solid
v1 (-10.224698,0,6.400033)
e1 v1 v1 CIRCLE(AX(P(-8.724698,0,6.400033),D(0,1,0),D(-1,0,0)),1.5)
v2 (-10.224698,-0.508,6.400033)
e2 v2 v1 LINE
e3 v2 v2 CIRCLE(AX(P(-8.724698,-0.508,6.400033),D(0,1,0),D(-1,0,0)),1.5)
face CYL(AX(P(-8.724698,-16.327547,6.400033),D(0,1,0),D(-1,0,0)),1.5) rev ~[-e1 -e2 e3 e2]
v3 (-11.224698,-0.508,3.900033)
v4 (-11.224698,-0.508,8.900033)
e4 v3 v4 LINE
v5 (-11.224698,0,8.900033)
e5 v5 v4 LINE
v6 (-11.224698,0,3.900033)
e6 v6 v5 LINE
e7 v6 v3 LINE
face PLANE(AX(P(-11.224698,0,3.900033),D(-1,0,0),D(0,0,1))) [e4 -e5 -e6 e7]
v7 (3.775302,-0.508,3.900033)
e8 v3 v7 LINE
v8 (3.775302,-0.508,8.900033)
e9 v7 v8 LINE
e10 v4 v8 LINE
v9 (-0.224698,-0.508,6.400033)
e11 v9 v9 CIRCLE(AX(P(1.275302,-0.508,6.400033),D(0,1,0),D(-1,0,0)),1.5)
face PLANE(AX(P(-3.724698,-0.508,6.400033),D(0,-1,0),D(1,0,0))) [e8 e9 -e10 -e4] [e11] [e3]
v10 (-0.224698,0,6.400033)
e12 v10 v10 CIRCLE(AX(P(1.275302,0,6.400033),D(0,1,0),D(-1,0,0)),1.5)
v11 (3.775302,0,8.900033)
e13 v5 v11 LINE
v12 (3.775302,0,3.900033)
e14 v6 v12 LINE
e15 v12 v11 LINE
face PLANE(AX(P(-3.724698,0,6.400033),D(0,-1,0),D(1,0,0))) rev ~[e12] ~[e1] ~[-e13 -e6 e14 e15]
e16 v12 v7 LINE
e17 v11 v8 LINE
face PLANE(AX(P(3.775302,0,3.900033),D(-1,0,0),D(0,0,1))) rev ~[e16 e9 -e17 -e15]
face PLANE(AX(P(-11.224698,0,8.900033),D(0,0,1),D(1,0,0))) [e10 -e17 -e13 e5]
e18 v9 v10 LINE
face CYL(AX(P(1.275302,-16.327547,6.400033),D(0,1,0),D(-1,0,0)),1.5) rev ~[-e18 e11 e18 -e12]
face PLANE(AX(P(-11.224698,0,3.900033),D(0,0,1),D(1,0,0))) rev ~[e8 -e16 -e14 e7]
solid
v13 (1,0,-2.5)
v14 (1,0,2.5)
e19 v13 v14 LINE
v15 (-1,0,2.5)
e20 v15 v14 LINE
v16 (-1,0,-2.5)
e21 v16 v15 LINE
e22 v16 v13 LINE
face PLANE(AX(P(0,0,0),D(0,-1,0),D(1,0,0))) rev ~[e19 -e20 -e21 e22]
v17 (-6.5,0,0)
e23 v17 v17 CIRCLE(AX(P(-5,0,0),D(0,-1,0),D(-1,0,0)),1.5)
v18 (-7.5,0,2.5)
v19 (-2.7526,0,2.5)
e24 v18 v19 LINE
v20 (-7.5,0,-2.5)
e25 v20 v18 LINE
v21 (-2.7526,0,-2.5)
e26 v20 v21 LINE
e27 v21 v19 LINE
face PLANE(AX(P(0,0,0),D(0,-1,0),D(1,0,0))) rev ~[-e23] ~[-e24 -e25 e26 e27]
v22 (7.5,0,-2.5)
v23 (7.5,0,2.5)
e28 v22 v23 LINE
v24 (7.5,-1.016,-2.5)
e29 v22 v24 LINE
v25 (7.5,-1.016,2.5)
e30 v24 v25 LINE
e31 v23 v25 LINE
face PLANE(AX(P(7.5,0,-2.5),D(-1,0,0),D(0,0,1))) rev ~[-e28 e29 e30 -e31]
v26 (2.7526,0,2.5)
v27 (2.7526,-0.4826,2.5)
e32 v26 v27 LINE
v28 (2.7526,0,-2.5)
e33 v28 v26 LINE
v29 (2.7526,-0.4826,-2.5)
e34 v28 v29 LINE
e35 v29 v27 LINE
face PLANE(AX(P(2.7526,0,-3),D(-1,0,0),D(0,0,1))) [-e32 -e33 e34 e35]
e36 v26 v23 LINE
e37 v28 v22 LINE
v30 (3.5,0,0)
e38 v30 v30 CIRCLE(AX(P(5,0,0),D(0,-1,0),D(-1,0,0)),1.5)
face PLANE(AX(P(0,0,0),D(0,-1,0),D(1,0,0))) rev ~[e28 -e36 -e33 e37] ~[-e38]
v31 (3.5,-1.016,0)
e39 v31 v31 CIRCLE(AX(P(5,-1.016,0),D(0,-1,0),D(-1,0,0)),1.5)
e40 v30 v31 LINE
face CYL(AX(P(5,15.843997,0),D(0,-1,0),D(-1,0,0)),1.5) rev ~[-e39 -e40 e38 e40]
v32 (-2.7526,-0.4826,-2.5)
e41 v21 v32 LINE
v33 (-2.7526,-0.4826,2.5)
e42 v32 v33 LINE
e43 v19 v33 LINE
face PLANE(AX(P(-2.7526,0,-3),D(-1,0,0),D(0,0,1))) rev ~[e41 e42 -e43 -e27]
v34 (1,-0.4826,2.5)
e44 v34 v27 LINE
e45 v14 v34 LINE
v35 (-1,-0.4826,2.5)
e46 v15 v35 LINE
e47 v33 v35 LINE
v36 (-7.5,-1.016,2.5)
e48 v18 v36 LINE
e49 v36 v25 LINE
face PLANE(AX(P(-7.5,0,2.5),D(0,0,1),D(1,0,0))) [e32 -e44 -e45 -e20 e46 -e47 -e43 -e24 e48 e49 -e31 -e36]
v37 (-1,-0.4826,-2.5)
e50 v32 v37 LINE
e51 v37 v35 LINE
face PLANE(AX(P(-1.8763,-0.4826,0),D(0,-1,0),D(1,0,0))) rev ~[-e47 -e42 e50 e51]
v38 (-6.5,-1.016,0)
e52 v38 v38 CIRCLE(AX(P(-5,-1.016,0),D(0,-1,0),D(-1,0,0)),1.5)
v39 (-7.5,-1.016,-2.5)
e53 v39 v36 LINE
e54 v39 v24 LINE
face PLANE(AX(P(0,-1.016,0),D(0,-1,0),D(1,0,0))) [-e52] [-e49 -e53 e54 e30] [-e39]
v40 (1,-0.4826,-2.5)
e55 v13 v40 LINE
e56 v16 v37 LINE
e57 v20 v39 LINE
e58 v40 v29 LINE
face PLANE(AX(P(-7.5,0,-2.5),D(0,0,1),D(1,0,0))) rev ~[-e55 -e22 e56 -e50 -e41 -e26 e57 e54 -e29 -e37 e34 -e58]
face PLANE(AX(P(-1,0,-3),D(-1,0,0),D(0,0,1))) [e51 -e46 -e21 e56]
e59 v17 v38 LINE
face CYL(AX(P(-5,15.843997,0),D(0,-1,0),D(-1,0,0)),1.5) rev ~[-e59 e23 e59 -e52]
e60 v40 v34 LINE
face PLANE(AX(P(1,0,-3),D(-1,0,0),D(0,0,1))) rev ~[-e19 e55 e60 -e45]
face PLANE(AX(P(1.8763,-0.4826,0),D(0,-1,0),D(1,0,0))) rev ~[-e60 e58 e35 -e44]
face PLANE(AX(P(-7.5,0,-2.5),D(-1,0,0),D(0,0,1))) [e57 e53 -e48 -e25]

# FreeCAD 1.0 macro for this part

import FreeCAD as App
import Part
import Sketcher
from FreeCAD import Vector
Q = App.Units.Quantity

doc = App.newDocument("Part")
body = doc.addObject("PartDesign::Body", "Body")

sketch1 = body.newObject("Sketcher::SketchObject", "Sketch")
sketch1.AttachmentSupport = (doc.getObject("XZ_Plane"), [""])
sketch1.MapMode = "FlatFace"
sketch1.addGeometry([
    Part.LineSegment(Vector(-8, 2, 0), Vector(-8, -2, 0)),
    Part.LineSegment(Vector(-8, -2, 0), Vector(8, -2, 0)),
    Part.LineSegment(Vector(8, -2, 0), Vector(8, 2, 0)),
    Part.LineSegment(Vector(8, 2, 0), Vector(-8, 2, 0)),
], False)
sketch1.addConstraint([
    Sketcher.Constraint("Coincident", 0, 2, 1, 1),
    Sketcher.Constraint("Coincident", 1, 2, 2, 1),
    Sketcher.Constraint("Coincident", 2, 2, 3, 1),
    Sketcher.Constraint("Coincident", 3, 2, 0, 1),
    Sketcher.Constraint("Vertical", 0),
    Sketcher.Constraint("Horizontal", 1),
    Sketcher.Constraint("Vertical", 2),
    Sketcher.Constraint("Horizontal", 3),
    Sketcher.Constraint("Symmetric", 0, 2, 2, 2, -1, 1),
    Sketcher.Constraint("DistanceX", 1, 1, 1, 2, Q("15 mm")),
    Sketcher.Constraint("DistanceY", 0, 2, 0, 1, Q("5 mm")),
])
pad1 = body.newObject("PartDesign::Pad", "Pad")
pad1.Profile = sketch1
pad1.Length = 1.016

sketch2 = body.newObject("Sketcher::SketchObject", "Sketch001")
sketch2.AttachmentSupport = (doc.getObject("XZ_Plane"), [""])
sketch2.MapMode = "FlatFace"
sketch2.addGeometry([
    Part.Circle(Vector(-5, 0, 0), Vector(0, 0, 1), 1.5),
    Part.Circle(Vector(5, 0, 0), Vector(0, 0, 1), 1.5),
], False)
sketch2.addConstraint([
    Sketcher.Constraint("Equal", 0, 1),
    Sketcher.Constraint("Symmetric", 0, 3, 1, 3, -1, 1),
    Sketcher.Constraint("PointOnObject", 0, 3, -1),
    Sketcher.Constraint("Diameter", 0, Q("3 mm")),
    Sketcher.Constraint("DistanceX", 0, 3, -1, 1, Q("5 mm")),
])
doc.recompute()
hole = body.newObject("PartDesign::Hole", "Hole")
hole.Profile = sketch2
hole.ThreadType = "None"
hole.Diameter = 3
hole.DepthType = "ThroughAll"
hole.Reversed = True
body2 = doc.addObject("PartDesign::Body", "Body001")

sketch3 = body2.newObject("Sketcher::SketchObject", "Sketch002")
sketch3.AttachmentSupport = (doc.getObject("XZ_Plane001"), [""])
sketch3.MapMode = "FlatFace"
sketch3.addGeometry([
    Part.LineSegment(Vector(-11, 9, 0), Vector(-11, 4, 0)),
    Part.LineSegment(Vector(-11, 4, 0), Vector(4, 4, 0)),
    Part.LineSegment(Vector(4, 4, 0), Vector(4, 9, 0)),
    Part.LineSegment(Vector(4, 9, 0), Vector(-11, 9, 0)),
], False)
sketch3.addConstraint([
    Sketcher.Constraint("Coincident", 0, 2, 1, 1),
    Sketcher.Constraint("Coincident", 1, 2, 2, 1),
    Sketcher.Constraint("Coincident", 2, 2, 3, 1),
    Sketcher.Constraint("Coincident", 3, 2, 0, 1),
    Sketcher.Constraint("Vertical", 0),
    Sketcher.Constraint("Horizontal", 1),
    Sketcher.Constraint("Vertical", 2),
    Sketcher.Constraint("Horizontal", 3),
    Sketcher.Constraint("DistanceX", 1, 1, 1, 2, Q("15 mm")),
    Sketcher.Constraint("DistanceY", 0, 2, 0, 1, Q("5 mm")),
    Sketcher.Constraint("DistanceX", -1, 1, 1, 2, Q("3.775302 mm")),
    Sketcher.Constraint("DistanceY", -1, 1, 0, 2, Q("3.900033 mm")),
])
pad2 = body2.newObject("PartDesign::Pad", "Pad001")
pad2.Profile = sketch3
pad2.Length = 0.508

sketch4 = body2.newObject("Sketcher::SketchObject", "Sketch003")
sketch4.AttachmentSupport = (doc.getObject("XZ_Plane001"), [""])
sketch4.MapMode = "FlatFace"
sketch4.AttachmentOffset = App.Placement(Vector(0, 0, 0.508), App.Rotation())
sketch4.addGeometry([
    Part.Circle(Vector(-8.7, 6.4, 0), Vector(0, 0, 1), 1.5),
    Part.Circle(Vector(1.3, 6.4, 0), Vector(0, 0, 1), 1.5),
], False)
sketch4.addConstraint([
    Sketcher.Constraint("Equal", 0, 1),
    Sketcher.Constraint("Horizontal", 0, 3, 1, 3),
    Sketcher.Constraint("Diameter", 0, Q("3 mm")),
    Sketcher.Constraint("DistanceX", 0, 3, 1, 3, Q("10 mm")),
    Sketcher.Constraint("DistanceX", -1, 1, 1, 3, Q("1.275302 mm")),
    Sketcher.Constraint("DistanceY", -1, 1, 0, 3, Q("6.400033 mm")),
])
doc.recompute()
hole2 = body2.newObject("PartDesign::Hole", "Hole001")
hole2.Profile = sketch4
hole2.ThreadType = "None"
hole2.Diameter = 3
hole2.DepthType = "ThroughAll"
body3 = doc.addObject("PartDesign::Body", "Body002")

sketch5 = body3.newObject("Sketcher::SketchObject", "Sketch004")
sketch5.AttachmentSupport = (doc.getObject("XZ_Plane002"), [""])
sketch5.MapMode = "FlatFace"
sketch5.addGeometry([
    Part.LineSegment(Vector(-2.8, 3, 0), Vector(-2.8, -3, 0)),
    Part.LineSegment(Vector(-2.8, -3, 0), Vector(-1, -3, 0)),
    Part.LineSegment(Vector(-1, -3, 0), Vector(-1, 3, 0)),
    Part.LineSegment(Vector(-1, 3, 0), Vector(-2.8, 3, 0)),
], False)
sketch5.addConstraint([
    Sketcher.Constraint("Coincident", 0, 2, 1, 1),
    Sketcher.Constraint("Coincident", 1, 2, 2, 1),
    Sketcher.Constraint("Coincident", 2, 2, 3, 1),
    Sketcher.Constraint("Coincident", 3, 2, 0, 1),
    Sketcher.Constraint("Vertical", 0),
    Sketcher.Constraint("Horizontal", 1),
    Sketcher.Constraint("Vertical", 2),
    Sketcher.Constraint("Horizontal", 3),
    Sketcher.Constraint("DistanceY", 0, 2, 0, 1, Q("6 mm")),
    Sketcher.Constraint("DistanceY", 0, 2, -1, 1, Q("3 mm")),
    Sketcher.Constraint("DistanceX", 1, 2, -1, 1, Q("1 mm")),
    Sketcher.Constraint("DistanceX", 1, 1, 1, 2, Q("1.7526 mm")),
])
pad3 = body3.newObject("PartDesign::Pad", "Pad002")
pad3.Profile = sketch5
pad3.Length = 0.4826
doc.recompute()

body4 = doc.addObject("PartDesign::Body", "Body003")
body4.BaseFeature = body3
boolean = body.newObject("PartDesign::Boolean", "Boolean")
boolean.Type = "Cut"
boolean.addObjects([body4])
doc.recompute()
body5 = doc.addObject("PartDesign::Body", "Body004")

sketch6 = body5.newObject("Sketcher::SketchObject", "Sketch005")
sketch6.AttachmentSupport = (doc.getObject("XZ_Plane004"), [""])
sketch6.MapMode = "FlatFace"
sketch6.addGeometry([
    Part.LineSegment(Vector(1, 3, 0), Vector(1, -3, 0)),
    Part.LineSegment(Vector(1, -3, 0), Vector(2.8, -3, 0)),
    Part.LineSegment(Vector(2.8, -3, 0), Vector(2.8, 3, 0)),
    Part.LineSegment(Vector(2.8, 3, 0), Vector(1, 3, 0)),
], False)
sketch6.addConstraint([
    Sketcher.Constraint("Coincident", 0, 2, 1, 1),
    Sketcher.Constraint("Coincident", 1, 2, 2, 1),
    Sketcher.Constraint("Coincident", 2, 2, 3, 1),
    Sketcher.Constraint("Coincident", 3, 2, 0, 1),
    Sketcher.Constraint("Vertical", 0),
    Sketcher.Constraint("Horizontal", 1),
    Sketcher.Constraint("Vertical", 2),
    Sketcher.Constraint("Horizontal", 3),
    Sketcher.Constraint("DistanceY", 0, 2, 0, 1, Q("6 mm")),
    Sketcher.Constraint("DistanceX", -1, 1, 0, 2, Q("1 mm")),
    Sketcher.Constraint("DistanceY", 0, 2, -1, 1, Q("3 mm")),
    Sketcher.Constraint("DistanceX", 1, 1, 1, 2, Q("1.7526 mm")),
])
pad4 = body5.newObject("PartDesign::Pad", "Pad003")
pad4.Profile = sketch6
pad4.Length = 0.4826
doc.recompute()

boolean2 = body.newObject("PartDesign::Boolean", "Boolean001")
boolean2.Type = "Cut"
boolean2.addObjects([body3])
doc.recompute()

boolean3 = body.newObject("PartDesign::Boolean", "Boolean002")
boolean3.Type = "Cut"
boolean3.addObjects([body5])

doc.recompute()
